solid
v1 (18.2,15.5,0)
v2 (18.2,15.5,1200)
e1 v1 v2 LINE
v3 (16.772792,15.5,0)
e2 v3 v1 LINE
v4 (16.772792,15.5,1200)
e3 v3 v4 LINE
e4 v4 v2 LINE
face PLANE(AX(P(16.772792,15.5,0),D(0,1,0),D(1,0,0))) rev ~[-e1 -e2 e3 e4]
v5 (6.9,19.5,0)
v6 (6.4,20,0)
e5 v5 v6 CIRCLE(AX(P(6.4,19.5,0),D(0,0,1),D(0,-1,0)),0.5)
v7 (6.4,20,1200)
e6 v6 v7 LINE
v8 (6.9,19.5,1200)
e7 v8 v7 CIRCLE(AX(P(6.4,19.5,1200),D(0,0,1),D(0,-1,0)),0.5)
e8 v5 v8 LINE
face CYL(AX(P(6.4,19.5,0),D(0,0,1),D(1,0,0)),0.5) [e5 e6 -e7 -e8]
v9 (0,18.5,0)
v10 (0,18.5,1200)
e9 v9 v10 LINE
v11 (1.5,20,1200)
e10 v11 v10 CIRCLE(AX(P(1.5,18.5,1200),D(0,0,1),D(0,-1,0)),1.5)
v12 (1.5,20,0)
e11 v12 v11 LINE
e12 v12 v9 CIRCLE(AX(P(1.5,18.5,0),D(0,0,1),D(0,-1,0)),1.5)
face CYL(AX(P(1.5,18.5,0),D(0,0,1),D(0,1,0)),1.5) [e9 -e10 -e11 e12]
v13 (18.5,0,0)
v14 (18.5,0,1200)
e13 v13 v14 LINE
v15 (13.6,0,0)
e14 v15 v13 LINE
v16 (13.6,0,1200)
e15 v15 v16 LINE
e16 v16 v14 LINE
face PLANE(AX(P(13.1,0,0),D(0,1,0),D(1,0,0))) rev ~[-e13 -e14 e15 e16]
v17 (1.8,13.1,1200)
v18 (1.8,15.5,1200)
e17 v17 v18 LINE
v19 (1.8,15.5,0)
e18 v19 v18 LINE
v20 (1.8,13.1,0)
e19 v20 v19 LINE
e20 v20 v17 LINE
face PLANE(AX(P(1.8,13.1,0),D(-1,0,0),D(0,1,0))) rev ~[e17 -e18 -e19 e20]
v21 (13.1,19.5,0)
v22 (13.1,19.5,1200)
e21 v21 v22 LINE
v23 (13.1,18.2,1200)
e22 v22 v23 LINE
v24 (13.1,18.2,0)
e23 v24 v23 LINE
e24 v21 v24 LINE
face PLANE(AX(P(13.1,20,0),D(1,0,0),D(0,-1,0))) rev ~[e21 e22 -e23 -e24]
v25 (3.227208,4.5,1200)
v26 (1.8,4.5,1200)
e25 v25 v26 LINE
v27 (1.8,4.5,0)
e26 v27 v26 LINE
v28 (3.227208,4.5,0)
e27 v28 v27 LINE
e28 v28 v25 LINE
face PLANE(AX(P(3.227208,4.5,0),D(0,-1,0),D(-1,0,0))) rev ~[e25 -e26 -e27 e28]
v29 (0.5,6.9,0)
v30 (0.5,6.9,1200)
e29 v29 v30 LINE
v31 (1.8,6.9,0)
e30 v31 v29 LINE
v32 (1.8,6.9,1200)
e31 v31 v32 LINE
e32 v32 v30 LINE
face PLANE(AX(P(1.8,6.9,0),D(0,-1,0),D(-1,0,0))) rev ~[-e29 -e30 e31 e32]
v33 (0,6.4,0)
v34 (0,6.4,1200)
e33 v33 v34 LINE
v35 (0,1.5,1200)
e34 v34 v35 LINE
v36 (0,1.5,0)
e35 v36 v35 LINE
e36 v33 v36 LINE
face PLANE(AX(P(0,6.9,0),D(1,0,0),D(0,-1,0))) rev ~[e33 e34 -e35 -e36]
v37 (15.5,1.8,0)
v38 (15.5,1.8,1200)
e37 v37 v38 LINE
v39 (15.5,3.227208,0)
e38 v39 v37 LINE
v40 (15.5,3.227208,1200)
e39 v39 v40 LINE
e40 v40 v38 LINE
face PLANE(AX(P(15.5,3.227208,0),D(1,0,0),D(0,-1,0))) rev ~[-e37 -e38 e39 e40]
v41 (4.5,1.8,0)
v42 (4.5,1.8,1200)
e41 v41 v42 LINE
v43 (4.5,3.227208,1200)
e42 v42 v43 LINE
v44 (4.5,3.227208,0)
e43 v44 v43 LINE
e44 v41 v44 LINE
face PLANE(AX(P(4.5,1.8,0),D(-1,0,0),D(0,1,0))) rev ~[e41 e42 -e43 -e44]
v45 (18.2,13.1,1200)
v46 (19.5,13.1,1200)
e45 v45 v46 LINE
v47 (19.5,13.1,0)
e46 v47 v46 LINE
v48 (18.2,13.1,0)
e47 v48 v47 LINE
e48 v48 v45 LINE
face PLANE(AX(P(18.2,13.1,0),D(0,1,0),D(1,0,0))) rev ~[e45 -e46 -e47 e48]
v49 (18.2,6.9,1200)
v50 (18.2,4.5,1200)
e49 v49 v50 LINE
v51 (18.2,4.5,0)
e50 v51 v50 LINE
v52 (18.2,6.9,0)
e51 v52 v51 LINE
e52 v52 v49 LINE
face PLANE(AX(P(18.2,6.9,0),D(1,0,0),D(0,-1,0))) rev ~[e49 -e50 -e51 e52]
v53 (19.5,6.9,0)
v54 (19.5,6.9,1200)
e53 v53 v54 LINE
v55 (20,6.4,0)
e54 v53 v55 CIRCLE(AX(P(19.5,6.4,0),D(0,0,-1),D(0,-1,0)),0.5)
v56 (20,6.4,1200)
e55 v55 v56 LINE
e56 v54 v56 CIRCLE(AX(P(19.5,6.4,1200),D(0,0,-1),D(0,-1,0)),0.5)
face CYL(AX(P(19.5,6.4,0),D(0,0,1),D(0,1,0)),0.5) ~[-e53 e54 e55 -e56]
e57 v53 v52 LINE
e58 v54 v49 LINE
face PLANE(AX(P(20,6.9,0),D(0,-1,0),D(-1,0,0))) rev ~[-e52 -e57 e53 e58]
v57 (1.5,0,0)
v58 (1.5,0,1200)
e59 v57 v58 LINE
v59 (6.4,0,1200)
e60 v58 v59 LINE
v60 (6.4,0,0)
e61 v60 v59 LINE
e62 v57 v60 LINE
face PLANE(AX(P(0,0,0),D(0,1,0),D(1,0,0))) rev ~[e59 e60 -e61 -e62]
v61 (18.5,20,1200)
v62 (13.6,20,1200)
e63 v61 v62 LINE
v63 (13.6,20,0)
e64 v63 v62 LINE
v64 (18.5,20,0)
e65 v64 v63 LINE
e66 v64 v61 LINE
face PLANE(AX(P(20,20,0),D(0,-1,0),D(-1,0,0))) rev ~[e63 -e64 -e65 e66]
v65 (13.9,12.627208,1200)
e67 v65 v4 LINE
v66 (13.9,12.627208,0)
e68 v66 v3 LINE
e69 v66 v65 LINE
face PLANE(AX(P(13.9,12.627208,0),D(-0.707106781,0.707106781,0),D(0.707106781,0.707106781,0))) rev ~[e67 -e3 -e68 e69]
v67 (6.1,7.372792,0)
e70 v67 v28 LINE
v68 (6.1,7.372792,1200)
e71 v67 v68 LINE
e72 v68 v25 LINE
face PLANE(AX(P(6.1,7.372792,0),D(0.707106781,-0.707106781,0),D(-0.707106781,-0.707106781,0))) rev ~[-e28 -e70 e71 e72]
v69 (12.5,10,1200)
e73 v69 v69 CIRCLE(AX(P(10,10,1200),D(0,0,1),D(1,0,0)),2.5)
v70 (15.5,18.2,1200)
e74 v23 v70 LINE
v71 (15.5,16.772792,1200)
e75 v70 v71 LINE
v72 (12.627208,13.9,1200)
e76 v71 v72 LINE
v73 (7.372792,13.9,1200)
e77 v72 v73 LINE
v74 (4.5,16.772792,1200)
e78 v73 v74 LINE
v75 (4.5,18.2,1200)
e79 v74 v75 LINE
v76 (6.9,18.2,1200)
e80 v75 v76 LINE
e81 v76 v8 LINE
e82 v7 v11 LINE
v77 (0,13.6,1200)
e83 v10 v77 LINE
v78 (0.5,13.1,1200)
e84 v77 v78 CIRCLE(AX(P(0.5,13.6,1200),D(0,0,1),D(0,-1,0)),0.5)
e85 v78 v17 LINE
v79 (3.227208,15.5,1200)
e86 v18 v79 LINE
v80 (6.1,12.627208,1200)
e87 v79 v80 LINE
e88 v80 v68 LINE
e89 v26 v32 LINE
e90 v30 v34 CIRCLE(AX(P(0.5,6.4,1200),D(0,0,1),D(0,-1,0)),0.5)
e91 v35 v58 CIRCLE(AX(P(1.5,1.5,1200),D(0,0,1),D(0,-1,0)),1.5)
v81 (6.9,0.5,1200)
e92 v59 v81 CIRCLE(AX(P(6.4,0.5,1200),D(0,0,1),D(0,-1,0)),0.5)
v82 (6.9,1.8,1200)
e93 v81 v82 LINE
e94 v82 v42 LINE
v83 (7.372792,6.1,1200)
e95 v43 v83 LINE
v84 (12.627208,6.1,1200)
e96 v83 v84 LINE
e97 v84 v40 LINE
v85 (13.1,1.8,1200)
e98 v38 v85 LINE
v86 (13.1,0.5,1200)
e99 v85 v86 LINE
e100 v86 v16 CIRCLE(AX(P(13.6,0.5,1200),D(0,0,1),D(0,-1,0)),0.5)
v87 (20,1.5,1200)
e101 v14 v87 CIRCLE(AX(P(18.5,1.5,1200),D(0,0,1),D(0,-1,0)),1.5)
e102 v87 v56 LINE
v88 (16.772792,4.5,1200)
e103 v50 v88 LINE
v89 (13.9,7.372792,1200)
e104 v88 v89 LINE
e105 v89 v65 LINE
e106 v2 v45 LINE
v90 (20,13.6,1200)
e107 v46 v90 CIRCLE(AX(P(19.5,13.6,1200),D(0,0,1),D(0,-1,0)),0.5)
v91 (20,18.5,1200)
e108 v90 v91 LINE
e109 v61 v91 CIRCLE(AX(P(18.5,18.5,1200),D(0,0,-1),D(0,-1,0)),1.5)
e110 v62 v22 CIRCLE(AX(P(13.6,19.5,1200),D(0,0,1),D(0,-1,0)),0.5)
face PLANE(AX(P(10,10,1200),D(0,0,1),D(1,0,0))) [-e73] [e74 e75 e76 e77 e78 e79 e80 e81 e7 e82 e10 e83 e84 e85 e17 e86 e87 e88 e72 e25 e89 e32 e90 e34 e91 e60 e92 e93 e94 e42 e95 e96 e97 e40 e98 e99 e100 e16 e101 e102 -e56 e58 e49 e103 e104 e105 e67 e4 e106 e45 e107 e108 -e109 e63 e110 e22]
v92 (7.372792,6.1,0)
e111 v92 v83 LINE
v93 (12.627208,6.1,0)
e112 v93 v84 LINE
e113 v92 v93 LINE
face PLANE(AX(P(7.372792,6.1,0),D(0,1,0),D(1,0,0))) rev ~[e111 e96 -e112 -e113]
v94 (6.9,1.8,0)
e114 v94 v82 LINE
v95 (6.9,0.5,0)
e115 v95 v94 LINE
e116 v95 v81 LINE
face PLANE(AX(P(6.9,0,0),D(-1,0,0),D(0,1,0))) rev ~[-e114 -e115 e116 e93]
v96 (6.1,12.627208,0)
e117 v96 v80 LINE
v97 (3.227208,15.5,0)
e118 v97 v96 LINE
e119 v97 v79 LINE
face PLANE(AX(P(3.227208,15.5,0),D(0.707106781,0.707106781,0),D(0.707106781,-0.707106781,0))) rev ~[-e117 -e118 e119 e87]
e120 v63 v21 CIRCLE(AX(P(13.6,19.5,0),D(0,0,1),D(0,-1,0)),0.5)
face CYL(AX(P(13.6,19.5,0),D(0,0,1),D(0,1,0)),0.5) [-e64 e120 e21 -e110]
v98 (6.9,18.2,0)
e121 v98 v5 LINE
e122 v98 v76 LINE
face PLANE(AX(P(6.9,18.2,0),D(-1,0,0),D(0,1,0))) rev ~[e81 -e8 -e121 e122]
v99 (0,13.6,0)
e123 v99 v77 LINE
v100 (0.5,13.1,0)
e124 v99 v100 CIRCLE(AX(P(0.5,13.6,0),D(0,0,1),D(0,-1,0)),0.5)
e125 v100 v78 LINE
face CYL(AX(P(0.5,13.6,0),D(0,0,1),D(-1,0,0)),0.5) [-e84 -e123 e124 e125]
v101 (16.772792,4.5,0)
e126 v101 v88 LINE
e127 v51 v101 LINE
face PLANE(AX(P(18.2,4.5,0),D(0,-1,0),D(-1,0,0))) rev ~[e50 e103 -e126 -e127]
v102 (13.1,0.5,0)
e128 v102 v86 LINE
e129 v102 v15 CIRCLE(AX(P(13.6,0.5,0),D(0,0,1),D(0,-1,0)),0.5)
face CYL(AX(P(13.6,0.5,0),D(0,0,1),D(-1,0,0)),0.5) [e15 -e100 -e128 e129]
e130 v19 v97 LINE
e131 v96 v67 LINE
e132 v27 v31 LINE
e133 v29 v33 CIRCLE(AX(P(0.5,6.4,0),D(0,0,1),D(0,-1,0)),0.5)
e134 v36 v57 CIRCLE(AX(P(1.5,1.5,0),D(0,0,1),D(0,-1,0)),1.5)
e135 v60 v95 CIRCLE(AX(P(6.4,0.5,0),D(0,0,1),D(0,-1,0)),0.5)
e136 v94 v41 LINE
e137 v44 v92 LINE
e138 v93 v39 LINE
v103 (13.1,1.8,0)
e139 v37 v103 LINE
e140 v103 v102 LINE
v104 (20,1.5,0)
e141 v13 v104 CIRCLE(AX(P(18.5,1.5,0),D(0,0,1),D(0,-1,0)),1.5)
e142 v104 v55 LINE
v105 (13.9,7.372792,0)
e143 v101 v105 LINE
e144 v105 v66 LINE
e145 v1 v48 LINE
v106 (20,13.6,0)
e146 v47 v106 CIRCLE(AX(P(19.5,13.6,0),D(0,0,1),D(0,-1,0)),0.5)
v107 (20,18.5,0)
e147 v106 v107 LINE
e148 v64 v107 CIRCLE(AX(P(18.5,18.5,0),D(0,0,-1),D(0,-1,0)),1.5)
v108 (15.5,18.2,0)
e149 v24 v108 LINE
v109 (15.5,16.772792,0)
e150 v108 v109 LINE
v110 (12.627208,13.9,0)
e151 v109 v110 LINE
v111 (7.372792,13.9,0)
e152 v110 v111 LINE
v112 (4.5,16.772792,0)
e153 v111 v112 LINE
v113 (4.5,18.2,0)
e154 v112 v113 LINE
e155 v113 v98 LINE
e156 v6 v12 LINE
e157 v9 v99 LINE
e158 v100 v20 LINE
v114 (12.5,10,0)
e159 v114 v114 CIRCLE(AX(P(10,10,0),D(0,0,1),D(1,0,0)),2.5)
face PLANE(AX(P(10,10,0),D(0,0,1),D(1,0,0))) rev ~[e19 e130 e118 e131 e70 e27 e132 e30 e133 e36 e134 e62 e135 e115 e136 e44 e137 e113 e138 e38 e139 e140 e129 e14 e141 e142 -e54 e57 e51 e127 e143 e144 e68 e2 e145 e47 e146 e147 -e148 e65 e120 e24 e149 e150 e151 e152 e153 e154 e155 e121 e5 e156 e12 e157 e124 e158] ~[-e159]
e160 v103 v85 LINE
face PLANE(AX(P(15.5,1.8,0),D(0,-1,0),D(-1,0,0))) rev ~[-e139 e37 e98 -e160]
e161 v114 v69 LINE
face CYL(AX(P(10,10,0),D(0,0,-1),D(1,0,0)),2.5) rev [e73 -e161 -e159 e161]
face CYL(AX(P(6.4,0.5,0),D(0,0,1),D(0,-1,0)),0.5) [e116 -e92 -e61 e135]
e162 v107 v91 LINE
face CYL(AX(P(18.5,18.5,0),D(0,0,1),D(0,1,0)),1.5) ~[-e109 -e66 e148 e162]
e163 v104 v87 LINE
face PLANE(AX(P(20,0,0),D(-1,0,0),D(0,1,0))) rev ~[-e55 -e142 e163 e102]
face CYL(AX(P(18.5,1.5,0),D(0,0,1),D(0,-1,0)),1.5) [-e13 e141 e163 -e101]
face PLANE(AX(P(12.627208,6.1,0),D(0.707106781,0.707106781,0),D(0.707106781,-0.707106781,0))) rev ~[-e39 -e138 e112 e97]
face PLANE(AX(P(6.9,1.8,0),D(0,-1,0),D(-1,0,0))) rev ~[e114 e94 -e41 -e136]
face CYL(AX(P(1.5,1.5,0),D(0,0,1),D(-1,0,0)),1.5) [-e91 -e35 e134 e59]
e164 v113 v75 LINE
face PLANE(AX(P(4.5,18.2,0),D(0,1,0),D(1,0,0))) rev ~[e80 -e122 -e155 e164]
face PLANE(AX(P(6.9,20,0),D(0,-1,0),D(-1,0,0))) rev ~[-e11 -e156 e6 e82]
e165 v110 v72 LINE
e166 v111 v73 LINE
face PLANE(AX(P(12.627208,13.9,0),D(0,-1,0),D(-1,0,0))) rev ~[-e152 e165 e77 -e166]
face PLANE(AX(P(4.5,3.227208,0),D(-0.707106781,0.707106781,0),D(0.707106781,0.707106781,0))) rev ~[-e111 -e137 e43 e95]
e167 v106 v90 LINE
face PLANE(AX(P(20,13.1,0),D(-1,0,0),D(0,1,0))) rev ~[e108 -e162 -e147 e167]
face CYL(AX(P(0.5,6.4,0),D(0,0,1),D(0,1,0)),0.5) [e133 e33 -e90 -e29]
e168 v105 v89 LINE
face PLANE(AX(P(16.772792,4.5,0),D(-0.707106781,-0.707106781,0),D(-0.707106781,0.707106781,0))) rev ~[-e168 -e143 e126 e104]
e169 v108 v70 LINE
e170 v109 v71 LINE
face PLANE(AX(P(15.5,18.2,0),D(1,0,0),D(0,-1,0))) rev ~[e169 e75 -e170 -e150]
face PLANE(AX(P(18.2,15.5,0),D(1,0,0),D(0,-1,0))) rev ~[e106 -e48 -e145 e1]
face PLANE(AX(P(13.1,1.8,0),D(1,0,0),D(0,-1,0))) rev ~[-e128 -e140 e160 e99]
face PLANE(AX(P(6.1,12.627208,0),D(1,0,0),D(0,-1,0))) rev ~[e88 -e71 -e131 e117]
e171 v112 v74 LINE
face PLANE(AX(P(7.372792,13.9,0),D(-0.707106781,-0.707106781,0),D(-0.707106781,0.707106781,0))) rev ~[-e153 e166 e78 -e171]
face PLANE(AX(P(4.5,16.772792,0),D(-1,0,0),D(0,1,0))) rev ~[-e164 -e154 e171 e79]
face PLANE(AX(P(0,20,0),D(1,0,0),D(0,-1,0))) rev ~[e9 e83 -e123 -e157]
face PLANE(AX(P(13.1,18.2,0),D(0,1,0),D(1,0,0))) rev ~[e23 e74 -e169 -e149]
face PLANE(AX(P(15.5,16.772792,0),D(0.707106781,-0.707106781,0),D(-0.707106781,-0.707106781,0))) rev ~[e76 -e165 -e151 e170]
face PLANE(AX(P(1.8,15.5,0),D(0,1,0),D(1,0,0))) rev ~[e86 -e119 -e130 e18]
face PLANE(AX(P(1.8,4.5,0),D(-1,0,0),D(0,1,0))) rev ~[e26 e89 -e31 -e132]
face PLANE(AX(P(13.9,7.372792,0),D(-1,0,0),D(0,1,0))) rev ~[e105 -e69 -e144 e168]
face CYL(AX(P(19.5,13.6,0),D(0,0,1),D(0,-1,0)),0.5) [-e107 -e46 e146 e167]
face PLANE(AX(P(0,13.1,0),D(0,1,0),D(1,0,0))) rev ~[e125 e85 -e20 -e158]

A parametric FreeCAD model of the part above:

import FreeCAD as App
import Part
import Sketcher
from FreeCAD import Vector


def edges_at(feature, points):
    """Names of the edges that pass closest to the given points."""
    edges = feature.Shape.Edges
    near = lambda p: min(range(len(edges)), key=lambda i: edges[i].distToShape(Part.Vertex(*p))[0])
    return sorted({f"Edge{near(p) + 1}" for p in points})


def add_polygon(sketch, points):
    """Adds a closed chain of lines whose ends are joined by coincident constraints."""
    first, n = sketch.GeometryCount, len(points)
    for a, b in zip(points, points[1:] + points[:1]):
        sketch.addGeometry(Part.LineSegment(App.Vector(*a, 0), App.Vector(*b, 0)), False)
    for i in range(n):
        sketch.addConstraint(Sketcher.Constraint("Coincident", first + i, 2, first + (i + 1) % n, 1))

doc = App.newDocument("Part")
body = doc.addObject("PartDesign::Body", "Body")

# Sketch on XY plane
sketch1 = doc.addObject("Sketcher::SketchObject", "Sketch")
body.addObject(sketch1)
sketch1.AttachmentSupport = (doc.XY_Plane, [""])
sketch1.MapMode = "FlatFace"
add_polygon(sketch1, [(0, 6.9), (0, 0), (6.9, 0), (6.9, 1.8), (4.5, 1.8), (4.5, 3.2), (7.4, 6.1), (12.6, 6.1), (15.5, 3.2), (15.5, 1.8), (13.1, 1.8), (13.1, 0), (20, 0), (20, 6.9), (18.2, 6.9), (18.2, 4.5), (16.8, 4.5), (13.9, 7.4), (13.9, 12.6), (16.8, 15.5), (18.2, 15.5), (18.2, 13.1), (20, 13.1), (20, 20), (13.1, 20), (13.1, 18.2), (15.5, 18.2), (15.5, 16.8), (12.6, 13.9), (7.4, 13.9), (4.5, 16.8), (4.5, 18.2), (6.9, 18.2), (6.9, 20), (0, 20), (0, 13.1), (1.8, 13.1), (1.8, 15.5), (3.2, 15.5), (6.1, 12.6), (6.1, 7.4), (3.2, 4.5), (1.8, 4.5), (1.8, 6.9)])  # lines 0-43
sketch1.addGeometry(Part.Circle(Vector(10, 10, 0), Vector(0, 0, 1), 2.5), False)  # 44
sketch1.addConstraint([
    Sketcher.Constraint("Vertical", 0),
    Sketcher.Constraint("Horizontal", 1),
    Sketcher.Constraint("Vertical", 2),
    Sketcher.Constraint("Horizontal", 3),
    Sketcher.Constraint("Vertical", 4),
    Sketcher.Constraint("Horizontal", 6),
    Sketcher.Constraint("Vertical", 8),
    Sketcher.Constraint("Horizontal", 9),
    Sketcher.Constraint("Vertical", 10),
    Sketcher.Constraint("Horizontal", 11),
    Sketcher.Constraint("Vertical", 12),
    Sketcher.Constraint("Horizontal", 13),
    Sketcher.Constraint("Vertical", 14),
    Sketcher.Constraint("Horizontal", 15),
    Sketcher.Constraint("Vertical", 17),
    Sketcher.Constraint("Horizontal", 19),
    Sketcher.Constraint("Vertical", 20),
    Sketcher.Constraint("Horizontal", 21),
    Sketcher.Constraint("Vertical", 22),
    Sketcher.Constraint("Horizontal", 23),
    Sketcher.Constraint("Vertical", 24),
    Sketcher.Constraint("Horizontal", 25),
    Sketcher.Constraint("Vertical", 26),
    Sketcher.Constraint("Horizontal", 28),
    Sketcher.Constraint("Vertical", 30),
    Sketcher.Constraint("Horizontal", 31),
    Sketcher.Constraint("Vertical", 32),
    Sketcher.Constraint("Horizontal", 33),
    Sketcher.Constraint("Vertical", 34),
    Sketcher.Constraint("Horizontal", 35),
    Sketcher.Constraint("Vertical", 36),
    Sketcher.Constraint("Horizontal", 37),
    Sketcher.Constraint("Vertical", 39),
    Sketcher.Constraint("Horizontal", 41),
    Sketcher.Constraint("Vertical", 42),
    Sketcher.Constraint("Horizontal", 43),
    Sketcher.Constraint("Coincident", 0, 2, -1, 1),
    Sketcher.Constraint("PointOnObject", 10, 2, -1),
    Sketcher.Constraint("PointOnObject", 33, 2, -2),
    Sketcher.Constraint("Perpendicular", 5, 7),
    Sketcher.Constraint("Parallel", 7, 16),
    Sketcher.Constraint("Perpendicular", 16, 18),
    Sketcher.Constraint("Parallel", 18, 27),
    Sketcher.Constraint("Perpendicular", 27, 29),
    Sketcher.Constraint("Parallel", 29, 38),
    Sketcher.Constraint("Perpendicular", 38, 40),
    Sketcher.Constraint("Horizontal", 4, 2, 7, 2),
    Sketcher.Constraint("Horizontal", 3, 2, 8, 2),
    Sketcher.Constraint("Horizontal", 26, 2, 29, 2),
    Sketcher.Constraint("Horizontal", 25, 2, 30, 2),
    Sketcher.Constraint("Horizontal", 23, 2, 32, 2),
    Sketcher.Constraint("Horizontal", 21, 2, 34, 2),
    Sketcher.Constraint("Horizontal", 19, 2, 36, 2),
    Sketcher.Constraint("Horizontal", 17, 2, 38, 2),
    Sketcher.Constraint("Horizontal", 16, 2, 39, 2),
    Sketcher.Constraint("Horizontal", 15, 2, 40, 2),
    Sketcher.Constraint("Horizontal", 13, 2, 42, 2),
    Sketcher.Constraint("Vertical", 15, 2, 18, 2),
    Sketcher.Constraint("Vertical", 14, 2, 19, 2),
    Sketcher.Constraint("Vertical", 12, 2, 21, 2),
    Sketcher.Constraint("Vertical", 10, 2, 23, 2),
    Sketcher.Constraint("Vertical", 8, 2, 25, 2),
    Sketcher.Constraint("Vertical", 6, 2, 27, 2),
    Sketcher.Constraint("Vertical", 5, 2, 28, 2),
    Sketcher.Constraint("Vertical", 4, 2, 29, 2),
    Sketcher.Constraint("Vertical", 2, 2, 31, 2),
    Sketcher.Constraint("Vertical", 36, 2, 41, 2),
    Sketcher.Constraint("Equal", 3, 9),
    Sketcher.Constraint("Equal", 1, 11),
    Sketcher.Constraint("Equal", 21, 35),
    Sketcher.Constraint("Equal", 19, 37),
    Sketcher.Constraint("Equal", 33, 0),
    Sketcher.Constraint("Equal", 43, 2),
    Sketcher.Constraint("Equal", 41, 4),
    Sketcher.Constraint("Equal", 31, 14),
    Sketcher.Constraint("Equal", 28, 17),
    Sketcher.Constraint("Equal", 14, 20),
    Sketcher.Constraint("Equal", 12, 22),
    Sketcher.Constraint("Equal", 10, 24),
    Sketcher.Constraint("Equal", 8, 26),
    Sketcher.Constraint("Equal", 7, 16),
    Sketcher.Constraint("Diameter", 44, 5.0),
    Sketcher.Constraint("DistanceX", 1, 1, 1, 2, 6.9),
    Sketcher.Constraint("DistanceX", 3, 2, 3, 1, 2.4),
    Sketcher.Constraint("DistanceX", 13, 2, 13, 1, 1.8),
    Sketcher.Constraint("DistanceX", -1, 1, 44, 3, 10.0),
    Sketcher.Constraint("DistanceY", -1, 1, 44, 3, 10.0),
    Sketcher.Constraint("DistanceX", -1, 1, 11, 2, 20.0),
    Sketcher.Constraint("DistanceY", -1, 1, 5, 2, 6.1),
    Sketcher.Constraint("Distance", 5, 4.062742),
])
pad1 = doc.addObject("PartDesign::Pad", "Pad")
body.addObject(pad1)
pad1.Profile = sketch1
pad1.Length = 1200
doc.recompute()

fillet = doc.addObject("PartDesign::Fillet", "Fillet")
body.addObject(fillet)
fillet.Base = (pad1, edges_at(pad1, [(20, 20, 600)]))
fillet.Radius = 1.5
doc.recompute()

fillet2 = doc.addObject("PartDesign::Fillet", "Fillet001")
body.addObject(fillet2)
fillet2.Base = (fillet, edges_at(fillet, [(0, 20, 600)]))
fillet2.Radius = 1.5
doc.recompute()

fillet3 = doc.addObject("PartDesign::Fillet", "Fillet002")
body.addObject(fillet3)
fillet3.Base = (fillet2, edges_at(fillet2, [(0, 0, 600)]))
fillet3.Radius = 1.5
doc.recompute()

fillet4 = doc.addObject("PartDesign::Fillet", "Fillet003")
body.addObject(fillet4)
fillet4.Base = (fillet3, edges_at(fillet3, [(20, 0, 600)]))
fillet4.Radius = 1.5
doc.recompute()

fillet5 = doc.addObject("PartDesign::Fillet", "Fillet004")
body.addObject(fillet5)
fillet5.Base = (fillet4, edges_at(fillet4, [(13.1, 20, 600)]))
fillet5.Radius = 0.5
doc.recompute()

fillet6 = doc.addObject("PartDesign::Fillet", "Fillet005")
body.addObject(fillet6)
fillet6.Base = (fillet5, edges_at(fillet5, [(6.9, 20, 600)]))
fillet6.Radius = 0.5
doc.recompute()

fillet7 = doc.addObject("PartDesign::Fillet", "Fillet006")
body.addObject(fillet7)
fillet7.Base = (fillet6, edges_at(fillet6, [(0, 13.1, 600)]))
fillet7.Radius = 0.5
doc.recompute()

fillet8 = doc.addObject("PartDesign::Fillet", "Fillet007")
body.addObject(fillet8)
fillet8.Base = (fillet7, edges_at(fillet7, [(0, 6.9, 600)]))
fillet8.Radius = 0.5
doc.recompute()

fillet9 = doc.addObject("PartDesign::Fillet", "Fillet008")
body.addObject(fillet9)
fillet9.Base = (fillet8, edges_at(fillet8, [(6.9, 0, 600)]))
fillet9.Radius = 0.5
doc.recompute()

fillet10 = doc.addObject("PartDesign::Fillet", "Fillet009")
body.addObject(fillet10)
fillet10.Base = (fillet9, edges_at(fillet9, [(13.1, 0, 600)]))
fillet10.Radius = 0.5
doc.recompute()

fillet11 = doc.addObject("PartDesign::Fillet", "Fillet010")
body.addObject(fillet11)
fillet11.Base = (fillet10, edges_at(fillet10, [(20, 13.1, 600)]))
fillet11.Radius = 0.5
doc.recompute()

fillet12 = doc.addObject("PartDesign::Fillet", "Fillet011")
body.addObject(fillet12)
fillet12.Base = (fillet11, edges_at(fillet11, [(20, 6.9, 600)]))
fillet12.Radius = 0.5

doc.recompute()
